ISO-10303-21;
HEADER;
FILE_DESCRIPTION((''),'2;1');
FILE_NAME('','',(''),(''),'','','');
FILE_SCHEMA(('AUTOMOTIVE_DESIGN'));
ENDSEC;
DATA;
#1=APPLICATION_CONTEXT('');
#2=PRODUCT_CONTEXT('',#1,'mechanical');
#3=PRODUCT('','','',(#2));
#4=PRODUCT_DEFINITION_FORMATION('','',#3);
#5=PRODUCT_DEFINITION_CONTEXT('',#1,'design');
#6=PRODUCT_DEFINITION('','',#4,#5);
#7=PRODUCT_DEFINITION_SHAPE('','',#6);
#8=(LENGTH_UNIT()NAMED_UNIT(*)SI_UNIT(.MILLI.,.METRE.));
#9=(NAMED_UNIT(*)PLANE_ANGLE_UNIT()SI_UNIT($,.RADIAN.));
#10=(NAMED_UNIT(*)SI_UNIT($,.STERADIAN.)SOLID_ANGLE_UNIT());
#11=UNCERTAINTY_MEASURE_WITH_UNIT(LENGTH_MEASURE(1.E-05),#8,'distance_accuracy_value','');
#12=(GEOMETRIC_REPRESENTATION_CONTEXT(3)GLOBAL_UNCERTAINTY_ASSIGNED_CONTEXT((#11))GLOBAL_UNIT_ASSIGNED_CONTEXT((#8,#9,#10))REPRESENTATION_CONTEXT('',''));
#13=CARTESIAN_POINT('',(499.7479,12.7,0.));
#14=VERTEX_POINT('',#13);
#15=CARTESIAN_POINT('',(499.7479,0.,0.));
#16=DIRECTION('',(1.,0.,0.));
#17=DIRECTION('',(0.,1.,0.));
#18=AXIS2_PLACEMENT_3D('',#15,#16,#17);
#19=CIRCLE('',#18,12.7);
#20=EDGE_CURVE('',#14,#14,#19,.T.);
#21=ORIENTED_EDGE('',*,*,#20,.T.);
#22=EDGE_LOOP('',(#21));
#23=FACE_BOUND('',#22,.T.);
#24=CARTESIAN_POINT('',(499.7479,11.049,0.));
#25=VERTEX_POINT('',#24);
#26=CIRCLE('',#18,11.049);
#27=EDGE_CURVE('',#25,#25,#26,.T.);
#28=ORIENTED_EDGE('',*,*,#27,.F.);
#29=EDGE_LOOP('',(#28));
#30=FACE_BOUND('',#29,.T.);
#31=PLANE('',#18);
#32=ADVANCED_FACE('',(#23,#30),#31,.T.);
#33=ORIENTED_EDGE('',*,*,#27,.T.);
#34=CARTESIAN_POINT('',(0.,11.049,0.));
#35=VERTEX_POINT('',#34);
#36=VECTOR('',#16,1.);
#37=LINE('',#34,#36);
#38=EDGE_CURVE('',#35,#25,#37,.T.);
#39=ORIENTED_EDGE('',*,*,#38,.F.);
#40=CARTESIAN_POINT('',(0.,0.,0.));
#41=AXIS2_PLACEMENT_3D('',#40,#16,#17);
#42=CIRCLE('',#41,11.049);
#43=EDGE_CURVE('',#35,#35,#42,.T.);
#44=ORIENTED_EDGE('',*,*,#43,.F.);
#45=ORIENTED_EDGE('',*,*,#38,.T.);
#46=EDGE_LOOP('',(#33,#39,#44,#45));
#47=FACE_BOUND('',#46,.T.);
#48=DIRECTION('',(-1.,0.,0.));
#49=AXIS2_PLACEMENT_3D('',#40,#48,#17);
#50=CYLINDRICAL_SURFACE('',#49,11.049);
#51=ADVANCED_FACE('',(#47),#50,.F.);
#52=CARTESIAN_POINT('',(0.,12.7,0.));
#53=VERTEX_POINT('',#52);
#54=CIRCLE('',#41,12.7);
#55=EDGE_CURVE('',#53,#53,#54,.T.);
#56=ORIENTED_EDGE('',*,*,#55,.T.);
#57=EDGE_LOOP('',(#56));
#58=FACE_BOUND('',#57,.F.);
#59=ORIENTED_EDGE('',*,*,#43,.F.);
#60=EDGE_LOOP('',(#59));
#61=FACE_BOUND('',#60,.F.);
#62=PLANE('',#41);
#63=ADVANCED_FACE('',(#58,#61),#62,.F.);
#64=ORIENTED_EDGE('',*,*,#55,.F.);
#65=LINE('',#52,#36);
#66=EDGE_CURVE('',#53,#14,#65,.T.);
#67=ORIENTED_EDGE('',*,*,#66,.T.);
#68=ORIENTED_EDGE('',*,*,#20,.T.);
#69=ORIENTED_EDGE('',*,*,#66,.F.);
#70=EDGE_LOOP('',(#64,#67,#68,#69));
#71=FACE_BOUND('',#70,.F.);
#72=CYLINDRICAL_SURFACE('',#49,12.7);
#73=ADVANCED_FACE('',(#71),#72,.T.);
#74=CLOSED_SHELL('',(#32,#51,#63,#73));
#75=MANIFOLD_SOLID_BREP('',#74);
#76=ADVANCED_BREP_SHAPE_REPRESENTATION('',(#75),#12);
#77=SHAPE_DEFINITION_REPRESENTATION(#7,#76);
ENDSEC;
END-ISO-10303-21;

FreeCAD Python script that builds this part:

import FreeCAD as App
import Part
import Sketcher

V = App.Vector
Q = App.Units.Quantity

doc = App.newDocument("Part")
body = doc.addObject("PartDesign::Body", "Body")

# Sketch on YZ plane
sketch1 = doc.addObject("Sketcher::SketchObject", "Sketch")
body.addObject(sketch1)
sketch1.AttachmentSupport = (doc.YZ_Plane, [""])
sketch1.MapMode = "FlatFace"
sketch1.addGeometry([
    Part.Circle(V(0, 0, 0), V(0, 0, 1), 13),
    Part.Circle(V(0, 0, 0), V(0, 0, 1), 11),
], False)
sketch1.addConstraint([
    Sketcher.Constraint("Coincident", 0, 3, -1, 1),
    Sketcher.Constraint("Coincident", 1, 3, -1, 1),
    Sketcher.Constraint("Diameter", 0, Q("1 in")),
    Sketcher.Constraint("Diameter", 1, Q("0.87 in")),
])
pad1 = doc.addObject("PartDesign::Pad", "Pad")
body.addObject(pad1)
pad1.Profile = sketch1
pad1.Length = 499.7479

doc.recompute()
